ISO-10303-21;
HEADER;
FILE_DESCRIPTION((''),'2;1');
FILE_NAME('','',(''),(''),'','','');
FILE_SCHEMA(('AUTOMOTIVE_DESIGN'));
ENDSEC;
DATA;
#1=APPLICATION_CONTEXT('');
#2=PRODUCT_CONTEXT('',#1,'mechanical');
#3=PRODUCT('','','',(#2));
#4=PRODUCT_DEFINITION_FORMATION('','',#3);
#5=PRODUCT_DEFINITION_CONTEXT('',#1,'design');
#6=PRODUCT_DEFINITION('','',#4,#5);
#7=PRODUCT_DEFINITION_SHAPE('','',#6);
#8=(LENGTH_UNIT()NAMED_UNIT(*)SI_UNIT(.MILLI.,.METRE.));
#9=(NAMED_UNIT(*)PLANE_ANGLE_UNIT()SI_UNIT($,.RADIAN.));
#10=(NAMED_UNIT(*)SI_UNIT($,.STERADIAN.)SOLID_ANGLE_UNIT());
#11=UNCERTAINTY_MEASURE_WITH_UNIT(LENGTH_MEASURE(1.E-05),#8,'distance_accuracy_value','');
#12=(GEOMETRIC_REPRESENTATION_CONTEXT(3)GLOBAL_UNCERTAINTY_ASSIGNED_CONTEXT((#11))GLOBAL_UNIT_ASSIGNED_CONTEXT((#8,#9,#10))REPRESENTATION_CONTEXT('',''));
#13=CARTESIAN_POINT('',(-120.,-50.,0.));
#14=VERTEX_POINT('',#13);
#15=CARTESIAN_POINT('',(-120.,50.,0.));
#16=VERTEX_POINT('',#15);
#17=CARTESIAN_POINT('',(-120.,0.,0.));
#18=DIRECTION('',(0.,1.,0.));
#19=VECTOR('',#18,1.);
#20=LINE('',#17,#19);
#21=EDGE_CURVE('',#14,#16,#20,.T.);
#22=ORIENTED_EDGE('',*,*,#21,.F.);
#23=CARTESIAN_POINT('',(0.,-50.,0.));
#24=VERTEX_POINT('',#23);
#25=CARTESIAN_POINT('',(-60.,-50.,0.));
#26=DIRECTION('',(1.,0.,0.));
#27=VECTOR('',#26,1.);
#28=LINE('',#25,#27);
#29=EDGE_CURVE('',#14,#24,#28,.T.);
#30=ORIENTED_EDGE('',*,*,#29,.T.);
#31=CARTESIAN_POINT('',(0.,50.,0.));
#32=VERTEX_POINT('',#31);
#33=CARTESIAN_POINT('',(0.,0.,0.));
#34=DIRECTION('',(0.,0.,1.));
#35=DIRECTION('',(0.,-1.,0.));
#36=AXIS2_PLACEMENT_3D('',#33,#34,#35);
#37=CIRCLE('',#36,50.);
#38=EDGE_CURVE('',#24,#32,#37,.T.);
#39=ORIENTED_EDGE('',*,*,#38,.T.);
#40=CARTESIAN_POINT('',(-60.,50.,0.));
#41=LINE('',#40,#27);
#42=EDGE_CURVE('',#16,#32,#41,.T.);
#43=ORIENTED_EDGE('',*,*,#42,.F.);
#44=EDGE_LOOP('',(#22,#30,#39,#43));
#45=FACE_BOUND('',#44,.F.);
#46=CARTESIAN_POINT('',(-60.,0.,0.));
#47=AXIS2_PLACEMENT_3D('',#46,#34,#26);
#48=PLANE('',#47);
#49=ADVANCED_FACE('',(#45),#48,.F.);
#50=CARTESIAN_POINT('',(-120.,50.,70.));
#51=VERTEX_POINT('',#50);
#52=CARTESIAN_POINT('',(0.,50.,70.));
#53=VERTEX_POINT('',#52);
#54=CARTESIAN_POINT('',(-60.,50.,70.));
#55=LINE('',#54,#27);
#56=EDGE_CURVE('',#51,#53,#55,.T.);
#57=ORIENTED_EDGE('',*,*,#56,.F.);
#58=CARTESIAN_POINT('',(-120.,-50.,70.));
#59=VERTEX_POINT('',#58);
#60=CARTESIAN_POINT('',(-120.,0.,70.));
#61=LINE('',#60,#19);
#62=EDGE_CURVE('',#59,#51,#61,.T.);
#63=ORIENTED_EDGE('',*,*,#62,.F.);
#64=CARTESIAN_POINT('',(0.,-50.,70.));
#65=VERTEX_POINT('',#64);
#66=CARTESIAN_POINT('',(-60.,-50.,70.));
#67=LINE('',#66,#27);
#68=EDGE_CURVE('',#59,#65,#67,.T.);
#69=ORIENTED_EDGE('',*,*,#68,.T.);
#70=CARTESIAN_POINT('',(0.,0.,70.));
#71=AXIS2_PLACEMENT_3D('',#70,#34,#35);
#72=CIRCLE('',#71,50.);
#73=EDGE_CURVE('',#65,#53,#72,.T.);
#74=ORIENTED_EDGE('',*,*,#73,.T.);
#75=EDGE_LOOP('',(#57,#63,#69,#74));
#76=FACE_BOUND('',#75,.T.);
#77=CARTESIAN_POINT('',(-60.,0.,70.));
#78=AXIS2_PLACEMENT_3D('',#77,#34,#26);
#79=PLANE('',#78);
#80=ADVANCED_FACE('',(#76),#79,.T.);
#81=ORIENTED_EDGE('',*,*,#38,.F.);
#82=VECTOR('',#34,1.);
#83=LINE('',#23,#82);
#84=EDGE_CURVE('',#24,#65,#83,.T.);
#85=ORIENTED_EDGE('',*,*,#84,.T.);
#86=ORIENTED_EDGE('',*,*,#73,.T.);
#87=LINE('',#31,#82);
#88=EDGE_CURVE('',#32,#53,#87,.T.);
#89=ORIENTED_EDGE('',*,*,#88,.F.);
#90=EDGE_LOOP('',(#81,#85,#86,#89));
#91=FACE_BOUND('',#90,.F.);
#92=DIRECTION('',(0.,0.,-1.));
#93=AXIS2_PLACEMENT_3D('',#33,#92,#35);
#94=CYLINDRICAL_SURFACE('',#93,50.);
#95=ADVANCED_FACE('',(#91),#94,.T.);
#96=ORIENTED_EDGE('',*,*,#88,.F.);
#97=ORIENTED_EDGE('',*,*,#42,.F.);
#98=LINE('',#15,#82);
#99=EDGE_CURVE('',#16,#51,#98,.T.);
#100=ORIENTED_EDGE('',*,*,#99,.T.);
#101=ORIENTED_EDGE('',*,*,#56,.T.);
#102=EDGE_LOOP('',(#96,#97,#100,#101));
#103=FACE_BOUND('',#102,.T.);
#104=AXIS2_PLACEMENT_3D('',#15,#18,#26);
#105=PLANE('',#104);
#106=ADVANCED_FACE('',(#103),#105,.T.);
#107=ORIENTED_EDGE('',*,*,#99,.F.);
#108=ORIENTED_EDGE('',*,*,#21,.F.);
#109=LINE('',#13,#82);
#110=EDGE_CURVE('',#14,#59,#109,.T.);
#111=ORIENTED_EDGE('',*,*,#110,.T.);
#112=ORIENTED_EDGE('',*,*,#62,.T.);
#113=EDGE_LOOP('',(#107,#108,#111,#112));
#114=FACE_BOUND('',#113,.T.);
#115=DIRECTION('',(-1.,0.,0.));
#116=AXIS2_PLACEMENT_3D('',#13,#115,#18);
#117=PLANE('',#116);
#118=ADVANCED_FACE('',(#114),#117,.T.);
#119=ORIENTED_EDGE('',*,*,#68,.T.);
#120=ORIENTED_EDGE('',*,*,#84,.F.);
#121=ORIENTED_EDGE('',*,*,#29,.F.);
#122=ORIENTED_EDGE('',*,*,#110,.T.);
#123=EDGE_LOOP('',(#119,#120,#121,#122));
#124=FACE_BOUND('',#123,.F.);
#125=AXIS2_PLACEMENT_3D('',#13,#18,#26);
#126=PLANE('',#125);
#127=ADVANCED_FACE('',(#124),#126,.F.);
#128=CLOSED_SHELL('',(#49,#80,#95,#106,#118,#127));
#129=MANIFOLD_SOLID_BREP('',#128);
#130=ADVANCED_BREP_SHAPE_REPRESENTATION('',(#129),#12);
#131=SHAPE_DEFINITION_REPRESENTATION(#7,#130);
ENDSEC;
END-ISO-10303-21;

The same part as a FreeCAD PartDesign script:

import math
import FreeCAD as App
import Part
import Sketcher

doc = App.newDocument("Part")
params = doc.addObject("Spreadsheet::Sheet", "Params")
for row, (alias, value) in enumerate([
    ("sketch1_radius", "50 mm"),
    ("sketch1_width", "120 mm"),
    ("pad1_length", "70 mm"),
], start=1):
    params.set(f"A{row}", alias)
    params.set(f"B{row}", "=" + value)
    params.setAlias(f"B{row}", alias)

body = doc.addObject("PartDesign::Body", "Body")

# Sketch on XY plane
sketch1 = body.newObject("Sketcher::SketchObject", "Sketch")
sketch1.AttachmentSupport = (doc.getObject("XY_Plane"), [""])
sketch1.MapMode = "FlatFace"
sketch1.addGeometry([
    Part.LineSegment(App.Vector(-120, 50, 0), App.Vector(-120, -50, 0)),
    Part.LineSegment(App.Vector(-120, -50, 0), App.Vector(0, -50, 0)),
    Part.ArcOfCircle(Part.Circle(App.Vector(0, 0, 0), App.Vector(0, 0, 1), 50), math.radians(-90), math.radians(90)),
    Part.LineSegment(App.Vector(0, 50, 0), App.Vector(-120, 50, 0)),
], False)
sketch1.addConstraint([
    Sketcher.Constraint("Coincident", 0, 2, 1, 1),
    Sketcher.Constraint("Tangent", 1, 2, 2, 1),
    Sketcher.Constraint("Tangent", 2, 2, 3, 1),
    Sketcher.Constraint("Coincident", 3, 2, 0, 1),
    Sketcher.Constraint("Vertical", 0),
    Sketcher.Constraint("Horizontal", 1),
    Sketcher.Constraint("Horizontal", 3),
    Sketcher.Constraint("Coincident", 2, 3, -1, 1),
    Sketcher.Constraint("Radius", 2, 50.0),
    Sketcher.Constraint("DistanceX", 1, 1, 1, 2, 120.0),
])
sketch1.setExpression("Constraints[8]", "Params.sketch1_radius")
sketch1.setExpression("Constraints[9]", "Params.sketch1_width")
pad1 = body.newObject("PartDesign::Pad", "Pad")
pad1.Profile = sketch1
pad1.setExpression("Length", "Params.pad1_length")

doc.recompute()
